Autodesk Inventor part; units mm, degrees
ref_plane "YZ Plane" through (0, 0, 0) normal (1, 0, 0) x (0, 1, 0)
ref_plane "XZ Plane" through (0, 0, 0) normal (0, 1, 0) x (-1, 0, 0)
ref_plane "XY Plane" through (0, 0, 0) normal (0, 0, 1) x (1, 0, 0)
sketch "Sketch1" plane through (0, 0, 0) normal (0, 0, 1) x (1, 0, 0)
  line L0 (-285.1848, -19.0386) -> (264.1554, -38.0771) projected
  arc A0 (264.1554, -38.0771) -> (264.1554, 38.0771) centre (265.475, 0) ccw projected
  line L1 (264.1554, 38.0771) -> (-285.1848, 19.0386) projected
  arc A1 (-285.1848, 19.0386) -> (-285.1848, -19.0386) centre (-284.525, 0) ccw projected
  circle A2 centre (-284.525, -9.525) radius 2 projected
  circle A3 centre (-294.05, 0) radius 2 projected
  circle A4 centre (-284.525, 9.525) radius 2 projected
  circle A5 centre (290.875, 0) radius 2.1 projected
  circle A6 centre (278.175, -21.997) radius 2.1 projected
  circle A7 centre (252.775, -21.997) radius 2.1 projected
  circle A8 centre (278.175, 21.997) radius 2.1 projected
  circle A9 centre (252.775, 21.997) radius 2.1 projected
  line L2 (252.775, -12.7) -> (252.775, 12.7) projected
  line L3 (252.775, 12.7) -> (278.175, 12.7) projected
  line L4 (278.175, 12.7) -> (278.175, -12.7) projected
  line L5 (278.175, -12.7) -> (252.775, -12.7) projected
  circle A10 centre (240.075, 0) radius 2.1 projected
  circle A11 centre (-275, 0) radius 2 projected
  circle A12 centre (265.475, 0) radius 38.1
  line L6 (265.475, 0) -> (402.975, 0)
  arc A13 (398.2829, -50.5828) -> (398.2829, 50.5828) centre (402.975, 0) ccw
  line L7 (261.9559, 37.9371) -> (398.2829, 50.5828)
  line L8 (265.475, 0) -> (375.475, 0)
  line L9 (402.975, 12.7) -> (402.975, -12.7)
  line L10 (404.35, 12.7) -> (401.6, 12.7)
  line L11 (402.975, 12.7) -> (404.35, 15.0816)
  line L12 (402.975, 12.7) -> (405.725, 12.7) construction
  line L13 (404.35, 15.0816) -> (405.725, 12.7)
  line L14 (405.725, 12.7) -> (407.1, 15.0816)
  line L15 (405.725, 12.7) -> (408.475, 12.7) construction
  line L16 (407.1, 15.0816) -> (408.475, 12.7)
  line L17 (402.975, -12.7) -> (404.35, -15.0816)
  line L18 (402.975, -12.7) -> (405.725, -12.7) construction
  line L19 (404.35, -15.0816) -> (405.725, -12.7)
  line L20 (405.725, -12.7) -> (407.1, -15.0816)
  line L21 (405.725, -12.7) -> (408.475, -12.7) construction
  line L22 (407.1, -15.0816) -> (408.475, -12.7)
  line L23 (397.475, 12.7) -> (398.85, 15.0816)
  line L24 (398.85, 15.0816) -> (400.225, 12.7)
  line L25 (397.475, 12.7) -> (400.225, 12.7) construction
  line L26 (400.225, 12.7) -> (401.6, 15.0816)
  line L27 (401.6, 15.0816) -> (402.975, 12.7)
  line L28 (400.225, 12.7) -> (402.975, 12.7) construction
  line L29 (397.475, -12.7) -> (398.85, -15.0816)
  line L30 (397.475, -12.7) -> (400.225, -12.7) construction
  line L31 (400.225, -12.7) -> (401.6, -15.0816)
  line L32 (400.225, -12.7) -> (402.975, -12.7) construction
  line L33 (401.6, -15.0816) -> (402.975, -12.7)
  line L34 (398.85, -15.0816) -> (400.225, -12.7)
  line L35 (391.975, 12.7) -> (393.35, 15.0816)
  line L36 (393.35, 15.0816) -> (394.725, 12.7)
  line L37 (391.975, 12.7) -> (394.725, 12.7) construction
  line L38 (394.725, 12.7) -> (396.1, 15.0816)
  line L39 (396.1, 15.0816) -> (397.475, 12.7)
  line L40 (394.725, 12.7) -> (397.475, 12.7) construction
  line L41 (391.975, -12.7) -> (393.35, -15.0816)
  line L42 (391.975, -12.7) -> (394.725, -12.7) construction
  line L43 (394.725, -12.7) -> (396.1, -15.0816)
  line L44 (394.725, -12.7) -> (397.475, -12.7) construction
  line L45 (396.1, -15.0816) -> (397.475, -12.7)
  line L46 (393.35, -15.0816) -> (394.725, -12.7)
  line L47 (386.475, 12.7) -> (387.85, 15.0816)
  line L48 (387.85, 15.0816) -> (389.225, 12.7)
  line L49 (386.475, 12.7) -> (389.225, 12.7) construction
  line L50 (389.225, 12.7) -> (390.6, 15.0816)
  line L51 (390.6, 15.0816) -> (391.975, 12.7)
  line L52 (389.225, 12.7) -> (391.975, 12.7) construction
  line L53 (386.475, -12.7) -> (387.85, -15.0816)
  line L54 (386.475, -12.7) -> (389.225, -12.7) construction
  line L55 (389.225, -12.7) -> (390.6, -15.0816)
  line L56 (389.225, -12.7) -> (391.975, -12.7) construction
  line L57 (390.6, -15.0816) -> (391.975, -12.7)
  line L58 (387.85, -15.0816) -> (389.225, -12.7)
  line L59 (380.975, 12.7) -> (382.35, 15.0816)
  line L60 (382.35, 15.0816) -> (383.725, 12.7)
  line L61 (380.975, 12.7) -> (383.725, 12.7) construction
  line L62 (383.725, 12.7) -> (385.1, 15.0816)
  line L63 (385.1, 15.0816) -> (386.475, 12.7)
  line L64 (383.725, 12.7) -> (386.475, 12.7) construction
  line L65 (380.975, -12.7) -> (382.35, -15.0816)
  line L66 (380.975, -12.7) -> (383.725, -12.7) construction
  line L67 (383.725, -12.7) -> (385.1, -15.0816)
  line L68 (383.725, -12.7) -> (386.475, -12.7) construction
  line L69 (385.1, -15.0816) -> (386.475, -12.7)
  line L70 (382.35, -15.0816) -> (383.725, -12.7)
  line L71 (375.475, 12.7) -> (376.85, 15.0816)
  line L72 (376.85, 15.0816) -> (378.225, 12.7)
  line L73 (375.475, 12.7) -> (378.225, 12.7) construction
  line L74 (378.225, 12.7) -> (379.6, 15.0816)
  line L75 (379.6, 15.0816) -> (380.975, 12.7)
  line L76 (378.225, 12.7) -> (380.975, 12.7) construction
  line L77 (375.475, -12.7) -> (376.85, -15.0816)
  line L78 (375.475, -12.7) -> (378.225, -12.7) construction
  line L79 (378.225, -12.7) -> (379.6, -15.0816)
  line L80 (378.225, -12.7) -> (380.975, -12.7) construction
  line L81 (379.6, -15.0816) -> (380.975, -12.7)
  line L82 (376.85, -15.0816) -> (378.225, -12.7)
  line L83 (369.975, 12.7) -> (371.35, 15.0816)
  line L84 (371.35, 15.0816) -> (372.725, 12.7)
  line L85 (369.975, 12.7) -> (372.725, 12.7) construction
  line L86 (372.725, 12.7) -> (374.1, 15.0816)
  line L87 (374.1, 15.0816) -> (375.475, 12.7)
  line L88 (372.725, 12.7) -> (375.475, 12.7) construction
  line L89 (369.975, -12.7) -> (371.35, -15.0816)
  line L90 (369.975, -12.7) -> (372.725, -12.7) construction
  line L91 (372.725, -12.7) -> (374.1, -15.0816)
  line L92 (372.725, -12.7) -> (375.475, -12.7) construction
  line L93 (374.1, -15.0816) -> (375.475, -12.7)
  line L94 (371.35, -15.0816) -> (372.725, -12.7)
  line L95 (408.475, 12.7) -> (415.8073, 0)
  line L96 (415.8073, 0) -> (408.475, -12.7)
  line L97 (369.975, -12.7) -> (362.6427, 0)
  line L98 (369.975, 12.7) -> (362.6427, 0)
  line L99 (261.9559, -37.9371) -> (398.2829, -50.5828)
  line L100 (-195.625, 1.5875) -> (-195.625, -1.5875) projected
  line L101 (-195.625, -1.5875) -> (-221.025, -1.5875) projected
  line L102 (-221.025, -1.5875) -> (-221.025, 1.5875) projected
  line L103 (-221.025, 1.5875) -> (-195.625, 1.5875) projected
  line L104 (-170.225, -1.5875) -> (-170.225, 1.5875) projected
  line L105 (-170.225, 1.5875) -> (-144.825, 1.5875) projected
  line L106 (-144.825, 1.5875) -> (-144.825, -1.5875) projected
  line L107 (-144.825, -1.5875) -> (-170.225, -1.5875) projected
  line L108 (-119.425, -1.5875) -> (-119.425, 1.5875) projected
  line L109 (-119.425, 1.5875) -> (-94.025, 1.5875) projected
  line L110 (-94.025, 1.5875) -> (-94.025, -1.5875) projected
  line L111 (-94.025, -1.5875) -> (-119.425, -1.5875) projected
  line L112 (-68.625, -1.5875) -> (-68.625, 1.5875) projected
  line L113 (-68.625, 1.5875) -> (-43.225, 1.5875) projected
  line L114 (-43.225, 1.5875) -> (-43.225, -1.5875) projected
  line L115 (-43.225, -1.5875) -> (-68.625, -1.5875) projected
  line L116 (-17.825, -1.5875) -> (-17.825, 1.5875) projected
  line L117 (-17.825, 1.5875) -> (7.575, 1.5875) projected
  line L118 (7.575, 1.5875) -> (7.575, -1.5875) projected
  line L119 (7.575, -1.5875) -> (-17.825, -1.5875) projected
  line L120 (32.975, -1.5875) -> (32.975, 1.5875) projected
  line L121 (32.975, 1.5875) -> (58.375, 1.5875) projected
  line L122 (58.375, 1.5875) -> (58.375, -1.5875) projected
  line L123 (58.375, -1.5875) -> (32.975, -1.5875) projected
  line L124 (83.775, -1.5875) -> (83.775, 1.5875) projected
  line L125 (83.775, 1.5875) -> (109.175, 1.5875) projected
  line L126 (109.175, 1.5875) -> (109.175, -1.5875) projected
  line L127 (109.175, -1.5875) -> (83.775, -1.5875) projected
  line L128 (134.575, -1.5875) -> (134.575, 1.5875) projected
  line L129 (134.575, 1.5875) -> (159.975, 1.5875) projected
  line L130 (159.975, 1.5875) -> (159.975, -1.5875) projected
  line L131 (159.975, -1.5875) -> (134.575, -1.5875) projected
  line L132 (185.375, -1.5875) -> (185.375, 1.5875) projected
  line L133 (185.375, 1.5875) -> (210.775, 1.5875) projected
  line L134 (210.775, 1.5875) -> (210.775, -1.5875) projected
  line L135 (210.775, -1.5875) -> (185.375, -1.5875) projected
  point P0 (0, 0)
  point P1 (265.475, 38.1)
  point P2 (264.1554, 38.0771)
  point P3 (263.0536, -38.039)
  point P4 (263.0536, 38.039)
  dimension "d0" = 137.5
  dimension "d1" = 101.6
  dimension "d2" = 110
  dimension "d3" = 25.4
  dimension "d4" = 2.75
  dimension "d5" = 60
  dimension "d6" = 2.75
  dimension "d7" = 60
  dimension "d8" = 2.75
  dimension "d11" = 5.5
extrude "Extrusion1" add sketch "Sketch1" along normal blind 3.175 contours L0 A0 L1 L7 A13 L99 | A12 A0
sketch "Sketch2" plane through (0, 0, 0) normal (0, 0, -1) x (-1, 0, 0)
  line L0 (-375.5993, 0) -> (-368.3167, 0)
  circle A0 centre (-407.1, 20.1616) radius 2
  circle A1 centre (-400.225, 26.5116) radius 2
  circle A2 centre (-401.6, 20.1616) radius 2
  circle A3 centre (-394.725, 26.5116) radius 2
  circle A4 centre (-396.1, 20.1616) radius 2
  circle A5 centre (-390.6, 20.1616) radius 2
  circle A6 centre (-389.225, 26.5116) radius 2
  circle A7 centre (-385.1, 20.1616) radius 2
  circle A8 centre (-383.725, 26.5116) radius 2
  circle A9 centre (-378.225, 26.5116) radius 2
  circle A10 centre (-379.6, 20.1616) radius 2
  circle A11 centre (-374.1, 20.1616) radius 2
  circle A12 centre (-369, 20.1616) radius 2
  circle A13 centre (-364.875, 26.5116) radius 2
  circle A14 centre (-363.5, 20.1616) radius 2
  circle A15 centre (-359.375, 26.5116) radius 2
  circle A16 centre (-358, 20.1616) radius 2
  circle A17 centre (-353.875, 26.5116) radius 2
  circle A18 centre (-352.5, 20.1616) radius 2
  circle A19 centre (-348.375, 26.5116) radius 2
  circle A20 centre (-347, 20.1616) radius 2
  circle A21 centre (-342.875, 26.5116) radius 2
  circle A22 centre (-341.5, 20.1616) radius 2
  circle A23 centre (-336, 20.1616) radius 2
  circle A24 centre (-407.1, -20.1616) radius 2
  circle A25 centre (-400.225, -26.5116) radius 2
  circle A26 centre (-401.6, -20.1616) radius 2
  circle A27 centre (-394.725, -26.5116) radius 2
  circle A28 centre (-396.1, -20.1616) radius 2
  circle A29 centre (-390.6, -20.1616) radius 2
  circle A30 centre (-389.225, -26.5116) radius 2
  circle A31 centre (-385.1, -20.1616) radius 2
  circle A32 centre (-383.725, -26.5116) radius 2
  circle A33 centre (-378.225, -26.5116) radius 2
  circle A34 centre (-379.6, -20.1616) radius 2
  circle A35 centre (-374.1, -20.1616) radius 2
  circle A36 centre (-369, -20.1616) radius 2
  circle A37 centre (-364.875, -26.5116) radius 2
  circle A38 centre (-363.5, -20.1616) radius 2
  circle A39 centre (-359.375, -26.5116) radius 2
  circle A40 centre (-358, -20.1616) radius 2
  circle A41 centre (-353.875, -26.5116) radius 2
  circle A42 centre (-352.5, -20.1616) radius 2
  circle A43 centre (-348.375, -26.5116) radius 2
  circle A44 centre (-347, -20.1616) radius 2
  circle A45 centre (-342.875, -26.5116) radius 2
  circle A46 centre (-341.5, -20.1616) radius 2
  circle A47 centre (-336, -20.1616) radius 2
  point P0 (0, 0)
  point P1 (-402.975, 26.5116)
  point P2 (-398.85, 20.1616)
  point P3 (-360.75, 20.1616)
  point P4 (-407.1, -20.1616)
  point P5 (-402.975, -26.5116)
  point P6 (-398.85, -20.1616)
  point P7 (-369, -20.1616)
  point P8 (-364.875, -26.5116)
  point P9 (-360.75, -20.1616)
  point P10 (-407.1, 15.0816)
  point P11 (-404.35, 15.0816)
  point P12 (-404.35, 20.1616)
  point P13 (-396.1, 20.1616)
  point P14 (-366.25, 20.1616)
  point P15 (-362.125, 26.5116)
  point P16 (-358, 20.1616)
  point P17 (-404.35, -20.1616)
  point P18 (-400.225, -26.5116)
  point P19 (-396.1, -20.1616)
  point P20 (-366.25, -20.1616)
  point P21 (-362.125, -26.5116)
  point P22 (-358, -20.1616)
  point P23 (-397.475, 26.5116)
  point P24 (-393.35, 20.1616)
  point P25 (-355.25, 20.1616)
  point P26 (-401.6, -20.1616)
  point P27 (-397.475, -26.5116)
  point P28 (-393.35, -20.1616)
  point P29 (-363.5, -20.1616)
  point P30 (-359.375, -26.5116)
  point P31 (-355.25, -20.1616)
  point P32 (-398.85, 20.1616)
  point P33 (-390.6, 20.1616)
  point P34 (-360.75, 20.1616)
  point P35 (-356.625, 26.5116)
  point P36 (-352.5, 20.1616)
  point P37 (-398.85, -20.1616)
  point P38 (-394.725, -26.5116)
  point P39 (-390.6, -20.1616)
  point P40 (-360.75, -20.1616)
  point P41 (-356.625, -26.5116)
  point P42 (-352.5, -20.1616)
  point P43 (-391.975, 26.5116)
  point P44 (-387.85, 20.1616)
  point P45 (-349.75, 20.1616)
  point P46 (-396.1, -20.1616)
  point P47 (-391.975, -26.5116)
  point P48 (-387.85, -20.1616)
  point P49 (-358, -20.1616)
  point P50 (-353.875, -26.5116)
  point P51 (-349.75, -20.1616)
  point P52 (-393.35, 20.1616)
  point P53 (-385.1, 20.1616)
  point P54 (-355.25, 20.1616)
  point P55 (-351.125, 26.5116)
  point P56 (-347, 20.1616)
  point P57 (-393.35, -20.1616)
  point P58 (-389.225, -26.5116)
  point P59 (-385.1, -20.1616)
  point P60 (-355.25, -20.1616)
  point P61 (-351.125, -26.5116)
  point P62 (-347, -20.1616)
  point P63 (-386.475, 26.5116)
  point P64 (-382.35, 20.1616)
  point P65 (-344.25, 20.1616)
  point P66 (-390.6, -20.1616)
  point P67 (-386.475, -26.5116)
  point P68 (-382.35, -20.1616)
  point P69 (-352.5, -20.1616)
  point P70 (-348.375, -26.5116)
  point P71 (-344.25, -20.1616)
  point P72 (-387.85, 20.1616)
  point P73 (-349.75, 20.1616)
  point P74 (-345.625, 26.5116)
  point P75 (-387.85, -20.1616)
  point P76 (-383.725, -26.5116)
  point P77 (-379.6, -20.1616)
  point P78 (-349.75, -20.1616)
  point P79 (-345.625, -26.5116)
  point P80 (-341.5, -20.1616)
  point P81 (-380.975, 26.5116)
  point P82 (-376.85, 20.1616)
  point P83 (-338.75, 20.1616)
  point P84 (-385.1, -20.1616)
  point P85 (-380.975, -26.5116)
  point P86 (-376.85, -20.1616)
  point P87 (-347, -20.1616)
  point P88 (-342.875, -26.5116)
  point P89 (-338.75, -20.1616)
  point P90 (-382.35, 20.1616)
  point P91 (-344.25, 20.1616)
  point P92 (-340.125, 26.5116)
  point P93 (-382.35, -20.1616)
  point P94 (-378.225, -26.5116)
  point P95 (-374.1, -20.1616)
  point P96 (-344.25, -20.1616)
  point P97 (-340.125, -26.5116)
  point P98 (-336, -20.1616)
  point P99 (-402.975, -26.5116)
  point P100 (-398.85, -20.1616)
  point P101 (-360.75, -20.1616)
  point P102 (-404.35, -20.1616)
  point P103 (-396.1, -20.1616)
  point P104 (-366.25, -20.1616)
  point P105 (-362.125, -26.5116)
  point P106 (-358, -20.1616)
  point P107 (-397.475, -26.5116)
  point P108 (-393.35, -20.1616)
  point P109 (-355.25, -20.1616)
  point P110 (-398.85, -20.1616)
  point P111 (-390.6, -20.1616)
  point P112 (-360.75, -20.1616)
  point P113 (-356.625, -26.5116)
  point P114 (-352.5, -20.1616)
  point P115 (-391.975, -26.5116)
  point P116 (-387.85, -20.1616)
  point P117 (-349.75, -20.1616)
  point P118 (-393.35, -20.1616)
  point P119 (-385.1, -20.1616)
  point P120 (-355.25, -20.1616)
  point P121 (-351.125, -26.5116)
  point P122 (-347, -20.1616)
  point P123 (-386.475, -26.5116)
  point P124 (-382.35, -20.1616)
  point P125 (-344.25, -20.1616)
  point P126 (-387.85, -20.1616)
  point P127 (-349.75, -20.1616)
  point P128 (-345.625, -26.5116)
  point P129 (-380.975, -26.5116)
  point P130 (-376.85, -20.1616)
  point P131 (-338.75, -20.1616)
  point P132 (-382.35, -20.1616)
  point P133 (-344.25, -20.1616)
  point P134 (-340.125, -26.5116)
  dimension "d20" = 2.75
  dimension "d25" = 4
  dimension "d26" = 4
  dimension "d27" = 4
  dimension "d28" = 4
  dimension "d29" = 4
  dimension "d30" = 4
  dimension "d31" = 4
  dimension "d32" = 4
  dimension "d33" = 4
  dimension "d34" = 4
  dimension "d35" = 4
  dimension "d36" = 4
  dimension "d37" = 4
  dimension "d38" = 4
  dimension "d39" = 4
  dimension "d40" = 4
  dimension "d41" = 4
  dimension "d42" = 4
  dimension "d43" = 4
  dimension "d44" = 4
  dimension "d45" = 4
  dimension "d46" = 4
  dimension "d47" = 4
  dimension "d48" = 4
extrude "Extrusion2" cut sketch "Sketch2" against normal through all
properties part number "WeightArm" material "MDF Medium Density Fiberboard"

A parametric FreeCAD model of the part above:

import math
import FreeCAD as App
import Part
import Sketcher

V = App.Vector
Q = App.Units.Quantity

doc = App.newDocument("Part")
body = doc.addObject("PartDesign::Body", "Body")

sketch1 = body.newObject("Sketcher::SketchObject", "Sketch")
sketch1.AttachmentSupport = (doc.getObject("XY_Plane"), [""])
sketch1.MapMode = "FlatFace"
sketch1.addGeometry(Part.LineSegment(V(264.2, -38.1, 0), V(263.1, -38, 0)), False)
sketch1.addGeometry(Part.LineSegment(V(263.1, -38, 0), V(398.3, -50.6, 0)), False)
sketch1.addGeometry(Part.ArcOfCircle(Part.Circle(V(403, 0, 0), V(0, 0, 1), 50.8), math.radians(-95), math.radians(95)), False)
sketch1.addGeometry(Part.LineSegment(V(398.3, 50.6, 0), V(263.1, 38, 0)), False)
sketch1.addGeometry(Part.LineSegment(V(263.1, 38, 0), V(264.2, 38.1, 0)), False)
sketch1.addGeometry(Part.ArcOfCircle(Part.Circle(V(265.5, 0, 0), V(0, 0, 1), 38.1), math.radians(92), math.radians(268)), False)
sketch1.addGeometry(Part.LineSegment(V(370, -12.7, 0), V(362.6, 0, 0)), False)
sketch1.addGeometry(Part.LineSegment(V(362.6, 0, 0), V(370, 12.7, 0)), False)
sketch1.addGeometry(Part.LineSegment(V(370, 12.7, 0), V(371.4, 15.1, 0)), False)
sketch1.addGeometry(Part.LineSegment(V(371.4, 15.1, 0), V(372.7, 12.7, 0)), False)
sketch1.addGeometry(Part.LineSegment(V(372.7, 12.7, 0), V(374.1, 15.1, 0)), False)
sketch1.addGeometry(Part.LineSegment(V(374.1, 15.1, 0), V(375.5, 12.7, 0)), False)
sketch1.addGeometry(Part.LineSegment(V(375.5, 12.7, 0), V(376.9, 15.1, 0)), False)
sketch1.addGeometry(Part.LineSegment(V(376.9, 15.1, 0), V(378.2, 12.7, 0)), False)
sketch1.addGeometry(Part.LineSegment(V(378.2, 12.7, 0), V(379.6, 15.1, 0)), False)
sketch1.addGeometry(Part.LineSegment(V(379.6, 15.1, 0), V(381, 12.7, 0)), False)
sketch1.addGeometry(Part.LineSegment(V(381, 12.7, 0), V(382.4, 15.1, 0)), False)
sketch1.addGeometry(Part.LineSegment(V(382.4, 15.1, 0), V(383.7, 12.7, 0)), False)
sketch1.addGeometry(Part.LineSegment(V(383.7, 12.7, 0), V(385.1, 15.1, 0)), False)
sketch1.addGeometry(Part.LineSegment(V(385.1, 15.1, 0), V(386.5, 12.7, 0)), False)
sketch1.addGeometry(Part.LineSegment(V(386.5, 12.7, 0), V(387.9, 15.1, 0)), False)
sketch1.addGeometry(Part.LineSegment(V(387.9, 15.1, 0), V(389.2, 12.7, 0)), False)
sketch1.addGeometry(Part.LineSegment(V(389.2, 12.7, 0), V(390.6, 15.1, 0)), False)
sketch1.addGeometry(Part.LineSegment(V(390.6, 15.1, 0), V(392, 12.7, 0)), False)
sketch1.addGeometry(Part.LineSegment(V(392, 12.7, 0), V(393.4, 15.1, 0)), False)
sketch1.addGeometry(Part.LineSegment(V(393.4, 15.1, 0), V(394.7, 12.7, 0)), False)
sketch1.addGeometry(Part.LineSegment(V(394.7, 12.7, 0), V(396.1, 15.1, 0)), False)
sketch1.addGeometry(Part.LineSegment(V(396.1, 15.1, 0), V(397.5, 12.7, 0)), False)
sketch1.addGeometry(Part.LineSegment(V(397.5, 12.7, 0), V(398.9, 15.1, 0)), False)
sketch1.addGeometry(Part.LineSegment(V(398.9, 15.1, 0), V(400.2, 12.7, 0)), False)
sketch1.addGeometry(Part.LineSegment(V(400.2, 12.7, 0), V(401.6, 15.1, 0)), False)
sketch1.addGeometry(Part.LineSegment(V(401.6, 15.1, 0), V(403, 12.7, 0)), False)
sketch1.addGeometry(Part.LineSegment(V(403, 12.7, 0), V(404.4, 15.1, 0)), False)
sketch1.addGeometry(Part.LineSegment(V(404.4, 15.1, 0), V(405.7, 12.7, 0)), False)
sketch1.addGeometry(Part.LineSegment(V(405.7, 12.7, 0), V(407.1, 15.1, 0)), False)
sketch1.addGeometry(Part.LineSegment(V(407.1, 15.1, 0), V(408.5, 12.7, 0)), False)
sketch1.addGeometry(Part.LineSegment(V(408.5, 12.7, 0), V(415.8, 0, 0)), False)
sketch1.addGeometry(Part.LineSegment(V(415.8, 0, 0), V(408.5, -12.7, 0)), False)
sketch1.addGeometry(Part.LineSegment(V(408.5, -12.7, 0), V(407.1, -15.1, 0)), False)
sketch1.addGeometry(Part.LineSegment(V(407.1, -15.1, 0), V(405.7, -12.7, 0)), False)
sketch1.addGeometry(Part.LineSegment(V(405.7, -12.7, 0), V(404.4, -15.1, 0)), False)
sketch1.addGeometry(Part.LineSegment(V(404.4, -15.1, 0), V(403, -12.7, 0)), False)
sketch1.addGeometry(Part.LineSegment(V(403, -12.7, 0), V(401.6, -15.1, 0)), False)
sketch1.addGeometry(Part.LineSegment(V(401.6, -15.1, 0), V(400.2, -12.7, 0)), False)
sketch1.addGeometry(Part.LineSegment(V(400.2, -12.7, 0), V(398.9, -15.1, 0)), False)
sketch1.addGeometry(Part.LineSegment(V(398.9, -15.1, 0), V(397.5, -12.7, 0)), False)
sketch1.addGeometry(Part.LineSegment(V(397.5, -12.7, 0), V(396.1, -15.1, 0)), False)
sketch1.addGeometry(Part.LineSegment(V(396.1, -15.1, 0), V(394.7, -12.7, 0)), False)
sketch1.addGeometry(Part.LineSegment(V(394.7, -12.7, 0), V(393.4, -15.1, 0)), False)
sketch1.addGeometry(Part.LineSegment(V(393.4, -15.1, 0), V(392, -12.7, 0)), False)
sketch1.addGeometry(Part.LineSegment(V(392, -12.7, 0), V(390.6, -15.1, 0)), False)
sketch1.addGeometry(Part.LineSegment(V(390.6, -15.1, 0), V(389.2, -12.7, 0)), False)
sketch1.addGeometry(Part.LineSegment(V(389.2, -12.7, 0), V(387.9, -15.1, 0)), False)
sketch1.addGeometry(Part.LineSegment(V(387.9, -15.1, 0), V(386.5, -12.7, 0)), False)
sketch1.addGeometry(Part.LineSegment(V(386.5, -12.7, 0), V(385.1, -15.1, 0)), False)
sketch1.addGeometry(Part.LineSegment(V(385.1, -15.1, 0), V(383.7, -12.7, 0)), False)
sketch1.addGeometry(Part.LineSegment(V(383.7, -12.7, 0), V(382.4, -15.1, 0)), False)
sketch1.addGeometry(Part.LineSegment(V(382.4, -15.1, 0), V(381, -12.7, 0)), False)
sketch1.addGeometry(Part.LineSegment(V(381, -12.7, 0), V(379.6, -15.1, 0)), False)
sketch1.addGeometry(Part.LineSegment(V(379.6, -15.1, 0), V(378.2, -12.7, 0)), False)
sketch1.addGeometry(Part.LineSegment(V(378.2, -12.7, 0), V(376.9, -15.1, 0)), False)
sketch1.addGeometry(Part.LineSegment(V(376.9, -15.1, 0), V(375.5, -12.7, 0)), False)
sketch1.addGeometry(Part.LineSegment(V(375.5, -12.7, 0), V(374.1, -15.1, 0)), False)
sketch1.addGeometry(Part.LineSegment(V(374.1, -15.1, 0), V(372.7, -12.7, 0)), False)
sketch1.addGeometry(Part.LineSegment(V(372.7, -12.7, 0), V(371.4, -15.1, 0)), False)
sketch1.addGeometry(Part.LineSegment(V(371.4, -15.1, 0), V(370, -12.7, 0)), False)
sketch1.addGeometry(Part.Circle(V(252.8, -22, 0), V(0, 0, 1), 2.1), False)
sketch1.addGeometry(Part.Circle(V(278.2, -22, 0), V(0, 0, 1), 2.1), False)
sketch1.addGeometry(Part.Circle(V(240.1, 0, 0), V(0, 0, 1), 2.1), False)
sketch1.addGeometry(Part.Circle(V(252.8, 22, 0), V(0, 0, 1), 2.1), False)
sketch1.addGeometry(Part.LineSegment(V(278.2, 12.7, 0), V(278.2, 0, 0)), False)
sketch1.addGeometry(Part.LineSegment(V(278.2, 0, 0), V(278.2, -12.7, 0)), False)
sketch1.addGeometry(Part.LineSegment(V(278.2, -12.7, 0), V(252.8, -12.7, 0)), False)
sketch1.addGeometry(Part.LineSegment(V(252.8, -12.7, 0), V(252.8, 12.7, 0)), False)
sketch1.addGeometry(Part.LineSegment(V(252.8, 12.7, 0), V(278.2, 12.7, 0)), False)
sketch1.addGeometry(Part.ArcOfCircle(Part.Circle(V(290.9, 0, 0), V(0, 0, 1), 2.1), math.radians(0), math.radians(180)), False)
sketch1.addGeometry(Part.ArcOfCircle(Part.Circle(V(290.9, 0, 0), V(0, 0, 1), 2.1), math.radians(180), math.radians(360)), False)
sketch1.addGeometry(Part.Circle(V(278.2, 22, 0), V(0, 0, 1), 2.1), False)
sketch1.addConstraint(Sketcher.Constraint("Coincident", 0, 2, 1, 1))
sketch1.addConstraint(Sketcher.Constraint("Tangent", 1, 2, 2, 1))
sketch1.addConstraint(Sketcher.Constraint("Tangent", 2, 2, 3, 1))
sketch1.addConstraint(Sketcher.Constraint("Coincident", 3, 2, 4, 1))
sketch1.addConstraint(Sketcher.Constraint("Tangent", 4, 2, 5, 1))
sketch1.addConstraint(Sketcher.Constraint("Tangent", 5, 2, 0, 1))
sketch1.addConstraint(Sketcher.Constraint("Coincident", 6, 2, 7, 1))
sketch1.addConstraint(Sketcher.Constraint("Coincident", 7, 2, 8, 1))
sketch1.addConstraint(Sketcher.Constraint("Coincident", 8, 2, 9, 1))
sketch1.addConstraint(Sketcher.Constraint("Coincident", 9, 2, 10, 1))
sketch1.addConstraint(Sketcher.Constraint("Coincident", 10, 2, 11, 1))
sketch1.addConstraint(Sketcher.Constraint("Coincident", 11, 2, 12, 1))
sketch1.addConstraint(Sketcher.Constraint("Coincident", 12, 2, 13, 1))
sketch1.addConstraint(Sketcher.Constraint("Coincident", 13, 2, 14, 1))
sketch1.addConstraint(Sketcher.Constraint("Coincident", 14, 2, 15, 1))
sketch1.addConstraint(Sketcher.Constraint("Coincident", 15, 2, 16, 1))
sketch1.addConstraint(Sketcher.Constraint("Coincident", 16, 2, 17, 1))
sketch1.addConstraint(Sketcher.Constraint("Coincident", 17, 2, 18, 1))
sketch1.addConstraint(Sketcher.Constraint("Coincident", 18, 2, 19, 1))
sketch1.addConstraint(Sketcher.Constraint("Coincident", 19, 2, 20, 1))
sketch1.addConstraint(Sketcher.Constraint("Coincident", 20, 2, 21, 1))
sketch1.addConstraint(Sketcher.Constraint("Coincident", 21, 2, 22, 1))
sketch1.addConstraint(Sketcher.Constraint("Coincident", 22, 2, 23, 1))
sketch1.addConstraint(Sketcher.Constraint("Coincident", 23, 2, 24, 1))
sketch1.addConstraint(Sketcher.Constraint("Coincident", 24, 2, 25, 1))
sketch1.addConstraint(Sketcher.Constraint("Coincident", 25, 2, 26, 1))
sketch1.addConstraint(Sketcher.Constraint("Coincident", 26, 2, 27, 1))
sketch1.addConstraint(Sketcher.Constraint("Coincident", 27, 2, 28, 1))
sketch1.addConstraint(Sketcher.Constraint("Coincident", 28, 2, 29, 1))
sketch1.addConstraint(Sketcher.Constraint("Coincident", 29, 2, 30, 1))
sketch1.addConstraint(Sketcher.Constraint("Coincident", 30, 2, 31, 1))
sketch1.addConstraint(Sketcher.Constraint("Coincident", 31, 2, 32, 1))
sketch1.addConstraint(Sketcher.Constraint("Coincident", 32, 2, 33, 1))
sketch1.addConstraint(Sketcher.Constraint("Coincident", 33, 2, 34, 1))
sketch1.addConstraint(Sketcher.Constraint("Coincident", 34, 2, 35, 1))
sketch1.addConstraint(Sketcher.Constraint("Coincident", 35, 2, 36, 1))
sketch1.addConstraint(Sketcher.Constraint("Coincident", 36, 2, 37, 1))
sketch1.addConstraint(Sketcher.Constraint("Coincident", 37, 2, 38, 1))
sketch1.addConstraint(Sketcher.Constraint("Coincident", 38, 2, 39, 1))
sketch1.addConstraint(Sketcher.Constraint("Coincident", 39, 2, 40, 1))
sketch1.addConstraint(Sketcher.Constraint("Coincident", 40, 2, 41, 1))
sketch1.addConstraint(Sketcher.Constraint("Coincident", 41, 2, 42, 1))
sketch1.addConstraint(Sketcher.Constraint("Coincident", 42, 2, 43, 1))
sketch1.addConstraint(Sketcher.Constraint("Coincident", 43, 2, 44, 1))
sketch1.addConstraint(Sketcher.Constraint("Coincident", 44, 2, 45, 1))
sketch1.addConstraint(Sketcher.Constraint("Coincident", 45, 2, 46, 1))
sketch1.addConstraint(Sketcher.Constraint("Coincident", 46, 2, 47, 1))
sketch1.addConstraint(Sketcher.Constraint("Coincident", 47, 2, 48, 1))
sketch1.addConstraint(Sketcher.Constraint("Coincident", 48, 2, 49, 1))
sketch1.addConstraint(Sketcher.Constraint("Coincident", 49, 2, 50, 1))
sketch1.addConstraint(Sketcher.Constraint("Coincident", 50, 2, 51, 1))
sketch1.addConstraint(Sketcher.Constraint("Coincident", 51, 2, 52, 1))
sketch1.addConstraint(Sketcher.Constraint("Coincident", 52, 2, 53, 1))
sketch1.addConstraint(Sketcher.Constraint("Coincident", 53, 2, 54, 1))
sketch1.addConstraint(Sketcher.Constraint("Coincident", 54, 2, 55, 1))
sketch1.addConstraint(Sketcher.Constraint("Coincident", 55, 2, 56, 1))
sketch1.addConstraint(Sketcher.Constraint("Coincident", 56, 2, 57, 1))
sketch1.addConstraint(Sketcher.Constraint("Coincident", 57, 2, 58, 1))
sketch1.addConstraint(Sketcher.Constraint("Coincident", 58, 2, 59, 1))
sketch1.addConstraint(Sketcher.Constraint("Coincident", 59, 2, 60, 1))
sketch1.addConstraint(Sketcher.Constraint("Coincident", 60, 2, 61, 1))
sketch1.addConstraint(Sketcher.Constraint("Coincident", 61, 2, 62, 1))
sketch1.addConstraint(Sketcher.Constraint("Coincident", 62, 2, 63, 1))
sketch1.addConstraint(Sketcher.Constraint("Coincident", 63, 2, 64, 1))
sketch1.addConstraint(Sketcher.Constraint("Coincident", 64, 2, 65, 1))
sketch1.addConstraint(Sketcher.Constraint("Coincident", 65, 2, 6, 1))
sketch1.addConstraint(Sketcher.Constraint("Coincident", 70, 2, 71, 1))
sketch1.addConstraint(Sketcher.Constraint("Coincident", 71, 2, 72, 1))
sketch1.addConstraint(Sketcher.Constraint("Coincident", 72, 2, 73, 1))
sketch1.addConstraint(Sketcher.Constraint("Coincident", 73, 2, 74, 1))
sketch1.addConstraint(Sketcher.Constraint("Coincident", 74, 2, 70, 1))
sketch1.addConstraint(Sketcher.Constraint("Tangent", 75, 1, 76, 2))
sketch1.addConstraint(Sketcher.Constraint("Coincident", 76, 1, 75, 2))
sketch1.addConstraint(Sketcher.Constraint("Vertical", 70))
sketch1.addConstraint(Sketcher.Constraint("Vertical", 71))
sketch1.addConstraint(Sketcher.Constraint("Horizontal", 72))
sketch1.addConstraint(Sketcher.Constraint("Vertical", 73))
sketch1.addConstraint(Sketcher.Constraint("Horizontal", 74))
sketch1.addConstraint(Sketcher.Constraint("Equal", 66, 67))
sketch1.addConstraint(Sketcher.Constraint("Equal", 67, 68))
sketch1.addConstraint(Sketcher.Constraint("Equal", 68, 69))
sketch1.addConstraint(Sketcher.Constraint("Equal", 69, 75))
sketch1.addConstraint(Sketcher.Constraint("Equal", 76, 77))
sketch1.addConstraint(Sketcher.Constraint("Symmetric", 66, 3, 69, 3, -1))
sketch1.addConstraint(Sketcher.Constraint("Symmetric", 67, 3, 77, 3, -1))
sketch1.addConstraint(Sketcher.Constraint("Symmetric", 1, 2, 2, 2, -1))
sketch1.addConstraint(Sketcher.Constraint("Symmetric", 4, 2, 5, 2, -1))
sketch1.addConstraint(Sketcher.Constraint("Symmetric", 35, 2, 37, 2, -1))
sketch1.addConstraint(Sketcher.Constraint("Symmetric", 34, 2, 38, 2, -1))
sketch1.addConstraint(Sketcher.Constraint("Symmetric", 33, 2, 39, 2, -1))
sketch1.addConstraint(Sketcher.Constraint("Symmetric", 32, 2, 40, 2, -1))
sketch1.addConstraint(Sketcher.Constraint("Symmetric", 31, 2, 41, 2, -1))
sketch1.addConstraint(Sketcher.Constraint("Symmetric", 30, 2, 42, 2, -1))
sketch1.addConstraint(Sketcher.Constraint("Symmetric", 29, 2, 43, 2, -1))
sketch1.addConstraint(Sketcher.Constraint("Symmetric", 28, 2, 44, 2, -1))
sketch1.addConstraint(Sketcher.Constraint("Symmetric", 27, 2, 45, 2, -1))
sketch1.addConstraint(Sketcher.Constraint("Symmetric", 26, 2, 46, 2, -1))
sketch1.addConstraint(Sketcher.Constraint("Symmetric", 25, 2, 47, 2, -1))
sketch1.addConstraint(Sketcher.Constraint("Symmetric", 24, 2, 48, 2, -1))
sketch1.addConstraint(Sketcher.Constraint("Symmetric", 23, 2, 49, 2, -1))
sketch1.addConstraint(Sketcher.Constraint("Symmetric", 22, 2, 50, 2, -1))
sketch1.addConstraint(Sketcher.Constraint("Symmetric", 21, 2, 51, 2, -1))
sketch1.addConstraint(Sketcher.Constraint("Symmetric", 20, 2, 52, 2, -1))
sketch1.addConstraint(Sketcher.Constraint("Symmetric", 19, 2, 53, 2, -1))
sketch1.addConstraint(Sketcher.Constraint("Symmetric", 18, 2, 54, 2, -1))
sketch1.addConstraint(Sketcher.Constraint("Symmetric", 17, 2, 55, 2, -1))
sketch1.addConstraint(Sketcher.Constraint("Symmetric", 16, 2, 56, 2, -1))
sketch1.addConstraint(Sketcher.Constraint("Symmetric", 15, 2, 57, 2, -1))
sketch1.addConstraint(Sketcher.Constraint("Symmetric", 14, 2, 58, 2, -1))
sketch1.addConstraint(Sketcher.Constraint("Symmetric", 13, 2, 59, 2, -1))
sketch1.addConstraint(Sketcher.Constraint("Symmetric", 12, 2, 60, 2, -1))
sketch1.addConstraint(Sketcher.Constraint("Symmetric", 11, 2, 61, 2, -1))
sketch1.addConstraint(Sketcher.Constraint("Symmetric", 10, 2, 62, 2, -1))
sketch1.addConstraint(Sketcher.Constraint("Symmetric", 9, 2, 63, 2, -1))
sketch1.addConstraint(Sketcher.Constraint("Symmetric", 8, 2, 64, 2, -1))
sketch1.addConstraint(Sketcher.Constraint("Symmetric", 7, 2, 65, 2, -1))
sketch1.addConstraint(Sketcher.Constraint("PointOnObject", 68, 3, -1))
sketch1.addConstraint(Sketcher.Constraint("PointOnObject", 75, 3, -1))
sketch1.addConstraint(Sketcher.Constraint("PointOnObject", 6, 2, -1))
sketch1.addConstraint(Sketcher.Constraint("PointOnObject", 36, 2, -1))
sketch1.addConstraint(Sketcher.Constraint("PointOnObject", 70, 2, -1))
sketch1.addConstraint(Sketcher.Constraint("PointOnObject", 75, 1, -1))
sketch1.addConstraint(Sketcher.Constraint("PointOnObject", 76, 1, -1))
sketch1.addConstraint(Sketcher.Constraint("Parallel", 7, 8))
sketch1.addConstraint(Sketcher.Constraint("Parallel", 6, 9))
sketch1.addConstraint(Sketcher.Constraint("Parallel", 8, 10))
sketch1.addConstraint(Sketcher.Constraint("Parallel", 9, 11))
sketch1.addConstraint(Sketcher.Constraint("Parallel", 10, 12))
sketch1.addConstraint(Sketcher.Constraint("Parallel", 11, 13))
sketch1.addConstraint(Sketcher.Constraint("Parallel", 12, 14))
sketch1.addConstraint(Sketcher.Constraint("Parallel", 13, 15))
sketch1.addConstraint(Sketcher.Constraint("Parallel", 14, 16))
sketch1.addConstraint(Sketcher.Constraint("Parallel", 15, 17))
sketch1.addConstraint(Sketcher.Constraint("Parallel", 16, 18))
sketch1.addConstraint(Sketcher.Constraint("Parallel", 17, 19))
sketch1.addConstraint(Sketcher.Constraint("Parallel", 18, 20))
sketch1.addConstraint(Sketcher.Constraint("Parallel", 19, 21))
sketch1.addConstraint(Sketcher.Constraint("Parallel", 20, 22))
sketch1.addConstraint(Sketcher.Constraint("Parallel", 21, 23))
sketch1.addConstraint(Sketcher.Constraint("Parallel", 22, 24))
sketch1.addConstraint(Sketcher.Constraint("Parallel", 23, 25))
sketch1.addConstraint(Sketcher.Constraint("Parallel", 24, 26))
sketch1.addConstraint(Sketcher.Constraint("Parallel", 25, 27))
sketch1.addConstraint(Sketcher.Constraint("Parallel", 26, 28))
sketch1.addConstraint(Sketcher.Constraint("Parallel", 27, 29))
sketch1.addConstraint(Sketcher.Constraint("Parallel", 28, 30))
sketch1.addConstraint(Sketcher.Constraint("Parallel", 29, 31))
sketch1.addConstraint(Sketcher.Constraint("Parallel", 30, 32))
sketch1.addConstraint(Sketcher.Constraint("Parallel", 31, 33))
sketch1.addConstraint(Sketcher.Constraint("Parallel", 32, 34))
sketch1.addConstraint(Sketcher.Constraint("Parallel", 33, 35))
sketch1.addConstraint(Sketcher.Constraint("Parallel", 35, 36))
sketch1.addConstraint(Sketcher.Constraint("Horizontal", 66, 3, 67, 3))
sketch1.addConstraint(Sketcher.Constraint("Horizontal", 7, 2, 9, 2))
sketch1.addConstraint(Sketcher.Constraint("Horizontal", 8, 2, 10, 2))
sketch1.addConstraint(Sketcher.Constraint("Horizontal", 9, 2, 11, 2))
sketch1.addConstraint(Sketcher.Constraint("Horizontal", 10, 2, 12, 2))
sketch1.addConstraint(Sketcher.Constraint("Horizontal", 11, 2, 13, 2))
sketch1.addConstraint(Sketcher.Constraint("Horizontal", 12, 2, 14, 2))
sketch1.addConstraint(Sketcher.Constraint("Horizontal", 13, 2, 15, 2))
sketch1.addConstraint(Sketcher.Constraint("Horizontal", 14, 2, 16, 2))
sketch1.addConstraint(Sketcher.Constraint("Horizontal", 15, 2, 17, 2))
sketch1.addConstraint(Sketcher.Constraint("Horizontal", 16, 2, 18, 2))
sketch1.addConstraint(Sketcher.Constraint("Horizontal", 17, 2, 19, 2))
sketch1.addConstraint(Sketcher.Constraint("Horizontal", 18, 2, 20, 2))
sketch1.addConstraint(Sketcher.Constraint("Horizontal", 19, 2, 21, 2))
sketch1.addConstraint(Sketcher.Constraint("Horizontal", 20, 2, 22, 2))
sketch1.addConstraint(Sketcher.Constraint("Horizontal", 21, 2, 23, 2))
sketch1.addConstraint(Sketcher.Constraint("Horizontal", 22, 2, 24, 2))
sketch1.addConstraint(Sketcher.Constraint("Horizontal", 23, 2, 25, 2))
sketch1.addConstraint(Sketcher.Constraint("Horizontal", 24, 2, 26, 2))
sketch1.addConstraint(Sketcher.Constraint("Horizontal", 25, 2, 27, 2))
sketch1.addConstraint(Sketcher.Constraint("Horizontal", 26, 2, 28, 2))
sketch1.addConstraint(Sketcher.Constraint("Horizontal", 27, 2, 29, 2))
sketch1.addConstraint(Sketcher.Constraint("Horizontal", 28, 2, 30, 2))
sketch1.addConstraint(Sketcher.Constraint("Horizontal", 29, 2, 31, 2))
sketch1.addConstraint(Sketcher.Constraint("Horizontal", 30, 2, 32, 2))
sketch1.addConstraint(Sketcher.Constraint("Horizontal", 31, 2, 33, 2))
sketch1.addConstraint(Sketcher.Constraint("Horizontal", 32, 2, 34, 2))
sketch1.addConstraint(Sketcher.Constraint("Horizontal", 33, 2, 35, 2))
sketch1.addConstraint(Sketcher.Constraint("Horizontal", 65, 2, 71, 2))
sketch1.addConstraint(Sketcher.Constraint("Horizontal", 35, 2, 73, 2))
sketch1.addConstraint(Sketcher.Constraint("Vertical", 2, 3, 31, 2))
sketch1.addConstraint(Sketcher.Constraint("Vertical", 77, 3, 70, 2))
sketch1.addConstraint(Sketcher.Constraint("Vertical", 69, 3, 72, 2))
sketch1.addConstraint(Sketcher.Constraint("Equal", 74, 73))
sketch1.addConstraint(Sketcher.Constraint("Radius", 2, Q("2 in")))
sketch1.addConstraint(Sketcher.Constraint("DistanceX", 72, 2, 72, 1, Q("1 in")))
sketch1.addConstraint(Sketcher.Constraint("Angle", 7, Q("60.0002 deg")))
sketch1.addConstraint(Sketcher.Constraint("Radius", 5, Q("1.5 in")))
sketch1.addConstraint(Sketcher.Constraint("Angle", 1, Q("-5.2996 deg")))
sketch1.addConstraint(Sketcher.Constraint("Distance", 8, Q("2.75 mm")))
sketch1.addConstraint(Sketcher.Constraint("Diameter", 66, Q("4.2 mm")))
sketch1.addConstraint(Sketcher.Constraint("Distance", 0, Q("0.0434 in")))
sketch1.addConstraint(Sketcher.Constraint("DistanceY", 0, 2, -1, 1, Q("1.4976 in")))
sketch1.addConstraint(Sketcher.Constraint("DistanceX", -1, 1, 26, 2, Q("15.5945 in")))
sketch1.addConstraint(Sketcher.Constraint("DistanceX", -1, 1, 76, 1, Q("11.3691 in")))
sketch1.addConstraint(Sketcher.Constraint("DistanceX", -1, 1, 66, 3, Q("252.775 mm")))
sketch1.addConstraint(Sketcher.Constraint("DistanceY", 66, 3, -1, 1, Q("21.997 mm")))
sketch1.addConstraint(Sketcher.Constraint("DistanceX", -1, 1, 68, 3, Q("240.075 mm")))
pad1 = body.newObject("PartDesign::Pad", "Pad")
pad1.Profile = sketch1
pad1.Length = Q("0.125 in")

sketch2 = body.newObject("Sketcher::SketchObject", "Sketch001")
sketch2.AttachmentSupport = (doc.getObject("XY_Plane"), [""])
sketch2.MapMode = "FlatFace"
sketch2.addGeometry(Part.Circle(V(407.1, 20.2, 0), V(0, 0, 1), 2), False)
sketch2.addGeometry(Part.Circle(V(400.2, 26.5, 0), V(0, 0, 1), 2), False)
sketch2.addGeometry(Part.Circle(V(401.6, 20.2, 0), V(0, 0, 1), 2), False)
sketch2.addGeometry(Part.Circle(V(394.7, 26.5, 0), V(0, 0, 1), 2), False)
sketch2.addGeometry(Part.Circle(V(396.1, 20.2, 0), V(0, 0, 1), 2), False)
sketch2.addGeometry(Part.Circle(V(390.6, 20.2, 0), V(0, 0, 1), 2), False)
sketch2.addGeometry(Part.Circle(V(389.2, 26.5, 0), V(0, 0, 1), 2), False)
sketch2.addGeometry(Part.Circle(V(385.1, 20.2, 0), V(0, 0, 1), 2), False)
sketch2.addGeometry(Part.Circle(V(383.7, 26.5, 0), V(0, 0, 1), 2), False)
sketch2.addGeometry(Part.Circle(V(378.2, 26.5, 0), V(0, 0, 1), 2), False)
sketch2.addGeometry(Part.Circle(V(379.6, 20.2, 0), V(0, 0, 1), 2), False)
sketch2.addGeometry(Part.Circle(V(374.1, 20.2, 0), V(0, 0, 1), 2), False)
sketch2.addGeometry(Part.Circle(V(369, 20.2, 0), V(0, 0, 1), 2), False)
sketch2.addGeometry(Part.Circle(V(364.9, 26.5, 0), V(0, 0, 1), 2), False)
sketch2.addGeometry(Part.Circle(V(363.5, 20.2, 0), V(0, 0, 1), 2), False)
sketch2.addGeometry(Part.Circle(V(359.4, 26.5, 0), V(0, 0, 1), 2), False)
sketch2.addGeometry(Part.Circle(V(358, 20.2, 0), V(0, 0, 1), 2), False)
sketch2.addGeometry(Part.Circle(V(353.9, 26.5, 0), V(0, 0, 1), 2), False)
sketch2.addGeometry(Part.Circle(V(352.5, 20.2, 0), V(0, 0, 1), 2), False)
sketch2.addGeometry(Part.Circle(V(348.4, 26.5, 0), V(0, 0, 1), 2), False)
sketch2.addGeometry(Part.Circle(V(347, 20.2, 0), V(0, 0, 1), 2), False)
sketch2.addGeometry(Part.Circle(V(342.9, 26.5, 0), V(0, 0, 1), 2), False)
sketch2.addGeometry(Part.Circle(V(341.5, 20.2, 0), V(0, 0, 1), 2), False)
sketch2.addGeometry(Part.Circle(V(336, 20.2, 0), V(0, 0, 1), 2), False)
sketch2.addGeometry(Part.Circle(V(407.1, -20.2, 0), V(0, 0, 1), 2), False)
sketch2.addGeometry(Part.Circle(V(400.2, -26.5, 0), V(0, 0, 1), 2), False)
sketch2.addGeometry(Part.Circle(V(401.6, -20.2, 0), V(0, 0, 1), 2), False)
sketch2.addGeometry(Part.Circle(V(394.7, -26.5, 0), V(0, 0, 1), 2), False)
sketch2.addGeometry(Part.Circle(V(396.1, -20.2, 0), V(0, 0, 1), 2), False)
sketch2.addGeometry(Part.Circle(V(390.6, -20.2, 0), V(0, 0, 1), 2), False)
sketch2.addGeometry(Part.Circle(V(389.2, -26.5, 0), V(0, 0, 1), 2), False)
sketch2.addGeometry(Part.Circle(V(385.1, -20.2, 0), V(0, 0, 1), 2), False)
sketch2.addGeometry(Part.Circle(V(383.7, -26.5, 0), V(0, 0, 1), 2), False)
sketch2.addGeometry(Part.Circle(V(378.2, -26.5, 0), V(0, 0, 1), 2), False)
sketch2.addGeometry(Part.Circle(V(379.6, -20.2, 0), V(0, 0, 1), 2), False)
sketch2.addGeometry(Part.Circle(V(374.1, -20.2, 0), V(0, 0, 1), 2), False)
sketch2.addGeometry(Part.Circle(V(369, -20.2, 0), V(0, 0, 1), 2), False)
sketch2.addGeometry(Part.Circle(V(364.9, -26.5, 0), V(0, 0, 1), 2), False)
sketch2.addGeometry(Part.Circle(V(363.5, -20.2, 0), V(0, 0, 1), 2), False)
sketch2.addGeometry(Part.Circle(V(359.4, -26.5, 0), V(0, 0, 1), 2), False)
sketch2.addGeometry(Part.Circle(V(358, -20.2, 0), V(0, 0, 1), 2), False)
sketch2.addGeometry(Part.Circle(V(353.9, -26.5, 0), V(0, 0, 1), 2), False)
sketch2.addGeometry(Part.Circle(V(352.5, -20.2, 0), V(0, 0, 1), 2), False)
sketch2.addGeometry(Part.Circle(V(348.4, -26.5, 0), V(0, 0, 1), 2), False)
sketch2.addGeometry(Part.Circle(V(347, -20.2, 0), V(0, 0, 1), 2), False)
sketch2.addGeometry(Part.Circle(V(342.9, -26.5, 0), V(0, 0, 1), 2), False)
sketch2.addGeometry(Part.Circle(V(341.5, -20.2, 0), V(0, 0, 1), 2), False)
sketch2.addGeometry(Part.Circle(V(336, -20.2, 0), V(0, 0, 1), 2), False)
sketch2.addConstraint(Sketcher.Constraint("Equal", 0, 1))
sketch2.addConstraint(Sketcher.Constraint("Equal", 1, 2))
sketch2.addConstraint(Sketcher.Constraint("Equal", 2, 3))
sketch2.addConstraint(Sketcher.Constraint("Equal", 3, 4))
sketch2.addConstraint(Sketcher.Constraint("Equal", 4, 5))
sketch2.addConstraint(Sketcher.Constraint("Equal", 5, 6))
sketch2.addConstraint(Sketcher.Constraint("Equal", 6, 7))
sketch2.addConstraint(Sketcher.Constraint("Equal", 7, 8))
sketch2.addConstraint(Sketcher.Constraint("Equal", 8, 9))
sketch2.addConstraint(Sketcher.Constraint("Equal", 9, 10))
sketch2.addConstraint(Sketcher.Constraint("Equal", 10, 11))
sketch2.addConstraint(Sketcher.Constraint("Equal", 11, 12))
sketch2.addConstraint(Sketcher.Constraint("Equal", 12, 13))
sketch2.addConstraint(Sketcher.Constraint("Equal", 13, 14))
sketch2.addConstraint(Sketcher.Constraint("Equal", 14, 15))
sketch2.addConstraint(Sketcher.Constraint("Equal", 15, 16))
sketch2.addConstraint(Sketcher.Constraint("Equal", 16, 17))
sketch2.addConstraint(Sketcher.Constraint("Equal", 17, 18))
sketch2.addConstraint(Sketcher.Constraint("Equal", 18, 19))
sketch2.addConstraint(Sketcher.Constraint("Equal", 19, 20))
sketch2.addConstraint(Sketcher.Constraint("Equal", 20, 21))
sketch2.addConstraint(Sketcher.Constraint("Equal", 21, 22))
sketch2.addConstraint(Sketcher.Constraint("Equal", 22, 23))
sketch2.addConstraint(Sketcher.Constraint("Equal", 23, 24))
sketch2.addConstraint(Sketcher.Constraint("Equal", 24, 25))
sketch2.addConstraint(Sketcher.Constraint("Equal", 25, 26))
sketch2.addConstraint(Sketcher.Constraint("Equal", 26, 27))
sketch2.addConstraint(Sketcher.Constraint("Equal", 27, 28))
sketch2.addConstraint(Sketcher.Constraint("Equal", 28, 29))
sketch2.addConstraint(Sketcher.Constraint("Equal", 29, 30))
sketch2.addConstraint(Sketcher.Constraint("Equal", 30, 31))
sketch2.addConstraint(Sketcher.Constraint("Equal", 31, 32))
sketch2.addConstraint(Sketcher.Constraint("Equal", 32, 33))
sketch2.addConstraint(Sketcher.Constraint("Equal", 33, 34))
sketch2.addConstraint(Sketcher.Constraint("Equal", 34, 35))
sketch2.addConstraint(Sketcher.Constraint("Equal", 35, 36))
sketch2.addConstraint(Sketcher.Constraint("Equal", 36, 37))
sketch2.addConstraint(Sketcher.Constraint("Equal", 37, 38))
sketch2.addConstraint(Sketcher.Constraint("Equal", 38, 39))
sketch2.addConstraint(Sketcher.Constraint("Equal", 39, 40))
sketch2.addConstraint(Sketcher.Constraint("Equal", 40, 41))
sketch2.addConstraint(Sketcher.Constraint("Equal", 41, 42))
sketch2.addConstraint(Sketcher.Constraint("Equal", 42, 43))
sketch2.addConstraint(Sketcher.Constraint("Equal", 43, 44))
sketch2.addConstraint(Sketcher.Constraint("Equal", 44, 45))
sketch2.addConstraint(Sketcher.Constraint("Equal", 45, 46))
sketch2.addConstraint(Sketcher.Constraint("Equal", 46, 47))
sketch2.addConstraint(Sketcher.Constraint("Symmetric", 0, 3, 24, 3, -1))
sketch2.addConstraint(Sketcher.Constraint("Symmetric", 1, 3, 25, 3, -1))
sketch2.addConstraint(Sketcher.Constraint("Symmetric", 2, 3, 26, 3, -1))
sketch2.addConstraint(Sketcher.Constraint("Symmetric", 3, 3, 27, 3, -1))
sketch2.addConstraint(Sketcher.Constraint("Symmetric", 4, 3, 28, 3, -1))
sketch2.addConstraint(Sketcher.Constraint("Symmetric", 5, 3, 29, 3, -1))
sketch2.addConstraint(Sketcher.Constraint("Symmetric", 6, 3, 30, 3, -1))
sketch2.addConstraint(Sketcher.Constraint("Symmetric", 7, 3, 31, 3, -1))
sketch2.addConstraint(Sketcher.Constraint("Symmetric", 8, 3, 32, 3, -1))
sketch2.addConstraint(Sketcher.Constraint("Symmetric", 9, 3, 33, 3, -1))
sketch2.addConstraint(Sketcher.Constraint("Symmetric", 10, 3, 34, 3, -1))
sketch2.addConstraint(Sketcher.Constraint("Symmetric", 11, 3, 35, 3, -1))
sketch2.addConstraint(Sketcher.Constraint("Symmetric", 12, 3, 36, 3, -1))
sketch2.addConstraint(Sketcher.Constraint("Symmetric", 13, 3, 37, 3, -1))
sketch2.addConstraint(Sketcher.Constraint("Symmetric", 14, 3, 38, 3, -1))
sketch2.addConstraint(Sketcher.Constraint("Symmetric", 15, 3, 39, 3, -1))
sketch2.addConstraint(Sketcher.Constraint("Symmetric", 16, 3, 40, 3, -1))
sketch2.addConstraint(Sketcher.Constraint("Symmetric", 17, 3, 41, 3, -1))
sketch2.addConstraint(Sketcher.Constraint("Symmetric", 18, 3, 42, 3, -1))
sketch2.addConstraint(Sketcher.Constraint("Symmetric", 19, 3, 43, 3, -1))
sketch2.addConstraint(Sketcher.Constraint("Symmetric", 20, 3, 44, 3, -1))
sketch2.addConstraint(Sketcher.Constraint("Symmetric", 21, 3, 45, 3, -1))
sketch2.addConstraint(Sketcher.Constraint("Symmetric", 22, 3, 46, 3, -1))
sketch2.addConstraint(Sketcher.Constraint("Symmetric", 23, 3, 47, 3, -1))
sketch2.addConstraint(Sketcher.Constraint("Horizontal", 0, 3, 2, 3))
sketch2.addConstraint(Sketcher.Constraint("Horizontal", 1, 3, 3, 3))
sketch2.addConstraint(Sketcher.Constraint("Horizontal", 2, 3, 4, 3))
sketch2.addConstraint(Sketcher.Constraint("Horizontal", 4, 3, 5, 3))
sketch2.addConstraint(Sketcher.Constraint("Horizontal", 3, 3, 6, 3))
sketch2.addConstraint(Sketcher.Constraint("Horizontal", 5, 3, 7, 3))
sketch2.addConstraint(Sketcher.Constraint("Horizontal", 6, 3, 8, 3))
sketch2.addConstraint(Sketcher.Constraint("Horizontal", 8, 3, 9, 3))
sketch2.addConstraint(Sketcher.Constraint("Horizontal", 7, 3, 10, 3))
sketch2.addConstraint(Sketcher.Constraint("Horizontal", 10, 3, 11, 3))
sketch2.addConstraint(Sketcher.Constraint("Horizontal", 11, 3, 12, 3))
sketch2.addConstraint(Sketcher.Constraint("Horizontal", 9, 3, 13, 3))
sketch2.addConstraint(Sketcher.Constraint("Horizontal", 12, 3, 14, 3))
sketch2.addConstraint(Sketcher.Constraint("Horizontal", 13, 3, 15, 3))
sketch2.addConstraint(Sketcher.Constraint("Horizontal", 14, 3, 16, 3))
sketch2.addConstraint(Sketcher.Constraint("Horizontal", 15, 3, 17, 3))
sketch2.addConstraint(Sketcher.Constraint("Horizontal", 16, 3, 18, 3))
sketch2.addConstraint(Sketcher.Constraint("Horizontal", 17, 3, 19, 3))
sketch2.addConstraint(Sketcher.Constraint("Horizontal", 18, 3, 20, 3))
sketch2.addConstraint(Sketcher.Constraint("Horizontal", 19, 3, 21, 3))
sketch2.addConstraint(Sketcher.Constraint("Horizontal", 20, 3, 22, 3))
sketch2.addConstraint(Sketcher.Constraint("Horizontal", 22, 3, 23, 3))
sketch2.addConstraint(Sketcher.Constraint("Diameter", 0, Q("4 mm")))
sketch2.addConstraint(Sketcher.Constraint("DistanceY", 0, 3, 1, 3, Q("0.25 in")))
sketch2.addConstraint(Sketcher.Constraint("DistanceX", -1, 1, 1, 3, Q("15.7569 in")))
sketch2.addConstraint(Sketcher.Constraint("DistanceX", -1, 1, 4, 3, Q("15.5945 in")))
sketch2.addConstraint(Sketcher.Constraint("DistanceX", -1, 1, 16, 3, Q("14.0945 in")))
sketch2.addConstraint(Sketcher.Constraint("DistanceX", 3, 3, 0, 3, Q("0.4872 in")))
sketch2.addConstraint(Sketcher.Constraint("DistanceX", 5, 3, 3, 3, Q("0.1624 in")))
sketch2.addConstraint(Sketcher.Constraint("DistanceX", 6, 3, 2, 3, Q("0.4872 in")))
sketch2.addConstraint(Sketcher.Constraint("DistanceX", 7, 3, 6, 3, Q("0.1624 in")))
sketch2.addConstraint(Sketcher.Constraint("DistanceX", 8, 3, 4, 3, Q("0.4872 in")))
sketch2.addConstraint(Sketcher.Constraint("DistanceX", 9, 3, 5, 3, Q("0.4872 in")))
sketch2.addConstraint(Sketcher.Constraint("DistanceX", 10, 3, 8, 3, Q("0.1624 in")))
sketch2.addConstraint(Sketcher.Constraint("DistanceX", 11, 3, 9, 3, Q("0.1624 in")))
sketch2.addConstraint(Sketcher.Constraint("DistanceX", 12, 3, 9, 3, Q("0.3632 in")))
sketch2.addConstraint(Sketcher.Constraint("DistanceX", 13, 3, 12, 3, Q("0.1624 in")))
sketch2.addConstraint(Sketcher.Constraint("DistanceX", 15, 3, 14, 3, Q("0.1624 in")))
sketch2.addConstraint(Sketcher.Constraint("DistanceX", 17, 3, 16, 3, Q("0.1624 in")))
sketch2.addConstraint(Sketcher.Constraint("DistanceX", 18, 3, 13, 3, Q("0.4872 in")))
sketch2.addConstraint(Sketcher.Constraint("DistanceX", 19, 3, 18, 3, Q("0.1624 in")))
sketch2.addConstraint(Sketcher.Constraint("DistanceX", 20, 3, 15, 3, Q("0.4872 in")))
sketch2.addConstraint(Sketcher.Constraint("DistanceX", 21, 3, 20, 3, Q("0.1624 in")))
sketch2.addConstraint(Sketcher.Constraint("DistanceX", 22, 3, 17, 3, Q("0.4872 in")))
sketch2.addConstraint(Sketcher.Constraint("DistanceX", 23, 3, 19, 3, Q("0.4872 in")))
sketch2.addConstraint(Sketcher.Constraint("DistanceX", -1, 1, 0, 3, Q("407.1 mm")))
sketch2.addConstraint(Sketcher.Constraint("DistanceY", -1, 1, 0, 3, Q("20.1616 mm")))
sketch2.addConstraint(Sketcher.Constraint("DistanceX", -1, 1, 2, 3, Q("401.6 mm")))
sketch2.addConstraint(Sketcher.Constraint("DistanceX", -1, 1, 14, 3, Q("363.5 mm")))
pocket1 = body.newObject("PartDesign::Pocket", "Pocket")
pocket1.Profile = sketch2
pocket1.Type = "ThroughAll"
pocket1.Reversed = True

doc.recompute()
